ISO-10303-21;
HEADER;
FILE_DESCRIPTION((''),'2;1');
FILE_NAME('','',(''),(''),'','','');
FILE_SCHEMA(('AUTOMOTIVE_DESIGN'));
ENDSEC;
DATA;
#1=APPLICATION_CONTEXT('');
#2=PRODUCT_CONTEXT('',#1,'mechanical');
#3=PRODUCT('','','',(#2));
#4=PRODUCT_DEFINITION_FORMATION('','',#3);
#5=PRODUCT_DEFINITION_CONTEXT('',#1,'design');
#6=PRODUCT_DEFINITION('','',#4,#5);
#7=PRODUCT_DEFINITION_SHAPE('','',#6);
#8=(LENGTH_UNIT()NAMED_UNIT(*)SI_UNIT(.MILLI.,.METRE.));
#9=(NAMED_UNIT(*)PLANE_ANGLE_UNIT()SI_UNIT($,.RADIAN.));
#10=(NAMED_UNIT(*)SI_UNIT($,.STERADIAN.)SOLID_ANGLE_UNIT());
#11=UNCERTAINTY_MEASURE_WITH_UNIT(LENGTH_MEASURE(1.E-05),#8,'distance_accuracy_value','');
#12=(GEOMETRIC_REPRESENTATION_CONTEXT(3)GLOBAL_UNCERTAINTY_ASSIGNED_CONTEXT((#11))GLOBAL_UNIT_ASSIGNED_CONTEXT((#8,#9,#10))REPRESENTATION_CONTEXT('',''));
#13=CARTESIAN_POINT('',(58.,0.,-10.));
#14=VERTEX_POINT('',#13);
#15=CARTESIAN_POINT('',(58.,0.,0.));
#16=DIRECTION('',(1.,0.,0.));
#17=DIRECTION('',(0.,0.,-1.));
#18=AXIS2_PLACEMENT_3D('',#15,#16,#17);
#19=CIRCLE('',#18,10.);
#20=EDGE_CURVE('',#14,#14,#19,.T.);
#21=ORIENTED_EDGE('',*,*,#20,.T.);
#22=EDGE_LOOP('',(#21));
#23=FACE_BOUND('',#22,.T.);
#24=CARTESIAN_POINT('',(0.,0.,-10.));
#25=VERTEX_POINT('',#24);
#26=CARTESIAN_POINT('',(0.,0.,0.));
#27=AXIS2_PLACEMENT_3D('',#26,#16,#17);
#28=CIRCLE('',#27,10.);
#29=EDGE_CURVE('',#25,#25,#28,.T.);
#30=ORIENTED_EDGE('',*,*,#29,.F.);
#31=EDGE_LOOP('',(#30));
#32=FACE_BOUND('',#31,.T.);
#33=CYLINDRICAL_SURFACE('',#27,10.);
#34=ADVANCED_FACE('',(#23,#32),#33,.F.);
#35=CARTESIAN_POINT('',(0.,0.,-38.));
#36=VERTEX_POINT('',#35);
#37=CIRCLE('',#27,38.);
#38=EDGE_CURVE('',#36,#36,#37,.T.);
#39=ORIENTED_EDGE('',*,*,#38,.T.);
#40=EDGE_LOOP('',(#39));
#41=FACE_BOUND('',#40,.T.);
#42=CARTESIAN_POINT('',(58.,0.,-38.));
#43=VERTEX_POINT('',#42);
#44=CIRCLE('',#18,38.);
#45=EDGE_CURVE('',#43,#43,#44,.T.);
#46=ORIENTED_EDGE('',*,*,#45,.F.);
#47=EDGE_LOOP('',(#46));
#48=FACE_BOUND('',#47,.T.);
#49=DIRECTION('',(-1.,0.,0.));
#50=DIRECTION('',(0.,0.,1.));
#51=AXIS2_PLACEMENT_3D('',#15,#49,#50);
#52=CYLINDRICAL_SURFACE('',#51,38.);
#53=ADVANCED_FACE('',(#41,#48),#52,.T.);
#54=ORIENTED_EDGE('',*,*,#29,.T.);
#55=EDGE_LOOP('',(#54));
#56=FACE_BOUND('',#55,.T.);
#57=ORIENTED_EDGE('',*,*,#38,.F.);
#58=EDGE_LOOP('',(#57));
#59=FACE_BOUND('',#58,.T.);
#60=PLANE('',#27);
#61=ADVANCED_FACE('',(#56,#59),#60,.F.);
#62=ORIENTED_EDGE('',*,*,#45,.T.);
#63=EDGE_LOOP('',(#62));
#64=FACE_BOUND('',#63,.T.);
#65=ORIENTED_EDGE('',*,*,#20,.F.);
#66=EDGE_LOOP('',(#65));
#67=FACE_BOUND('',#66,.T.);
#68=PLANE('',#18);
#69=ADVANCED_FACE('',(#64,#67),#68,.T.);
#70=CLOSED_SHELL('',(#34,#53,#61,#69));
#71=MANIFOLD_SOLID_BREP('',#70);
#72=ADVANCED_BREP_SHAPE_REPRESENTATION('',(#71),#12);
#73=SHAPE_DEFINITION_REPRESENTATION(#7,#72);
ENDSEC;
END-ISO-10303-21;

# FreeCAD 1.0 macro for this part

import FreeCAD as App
import Part
import Sketcher

doc = App.newDocument("Part")
body = doc.addObject("PartDesign::Body", "Body")

# Sketch on YZ plane
sketch1 = body.newObject("Sketcher::SketchObject", "Sketch")
sketch1.AttachmentSupport = (doc.getObject("YZ_Plane"), [""])
sketch1.MapMode = "FlatFace"
sketch1.addGeometry(Part.Circle(App.Vector(0, 0, 0), App.Vector(0, 0, 1), 38), False)
sketch1.addConstraint([
    Sketcher.Constraint("Coincident", 0, 3, -1, 1),
    Sketcher.Constraint("Diameter", 0, 76.0),
])
pad1 = body.newObject("PartDesign::Pad", "Pad")
pad1.Profile = sketch1
pad1.Length = 58

# Sketch on YZ plane
sketch2 = body.newObject("Sketcher::SketchObject", "Sketch001")
sketch2.AttachmentSupport = (doc.getObject("YZ_Plane"), [""])
sketch2.MapMode = "FlatFace"
sketch2.AttachmentOffset = App.Placement(App.Vector(0, 0, 58), App.Rotation())
sketch2.addGeometry(Part.Circle(App.Vector(0, 0, 0), App.Vector(0, 0, 1), 10), False)
sketch2.addConstraint([
    Sketcher.Constraint("Coincident", 0, 3, -1, 1),
    Sketcher.Constraint("Diameter", 0, 20.0),
])
pocket1 = body.newObject("PartDesign::Pocket", "Pocket")
pocket1.Profile = sketch2
pocket1.Type = "ThroughAll"

doc.recompute()
